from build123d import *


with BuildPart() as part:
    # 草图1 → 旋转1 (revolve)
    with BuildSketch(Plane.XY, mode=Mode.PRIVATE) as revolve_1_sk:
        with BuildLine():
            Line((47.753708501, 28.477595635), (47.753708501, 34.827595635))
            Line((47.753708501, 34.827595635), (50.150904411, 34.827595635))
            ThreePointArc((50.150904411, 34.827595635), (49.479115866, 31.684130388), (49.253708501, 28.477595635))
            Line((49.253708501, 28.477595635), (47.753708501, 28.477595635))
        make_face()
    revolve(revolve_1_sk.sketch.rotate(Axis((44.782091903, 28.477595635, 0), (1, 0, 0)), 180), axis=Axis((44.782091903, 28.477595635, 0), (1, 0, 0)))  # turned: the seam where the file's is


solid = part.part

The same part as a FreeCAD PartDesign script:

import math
import FreeCAD as App
import Part
import Sketcher
from FreeCAD import Vector
Q = App.Units.Quantity

doc = App.newDocument("Part")
body = doc.addObject("PartDesign::Body", "Body")

# Sketch on XY plane
sketch1 = body.newObject("Sketcher::SketchObject", "Sketch")
sketch1.AttachmentSupport = (doc.getObject("XY_Plane"), [""])
sketch1.MapMode = "FlatFace"
sketch1.addGeometry(Part.LineSegment(Vector(47.8, 34.8, 0), Vector(47.8, 28.5, 0)), False)
sketch1.addGeometry(Part.LineSegment(Vector(47.8, 28.5, 0), Vector(49.3, 28.5, 0)), False)
sketch1.addGeometry(Part.ArcOfCircle(Part.Circle(Vector(72.2, 28.5, 0), Vector(0, 0, 1), 22.9), math.radians(163.92), math.radians(180)), False)
sketch1.addGeometry(Part.LineSegment(Vector(50.2, 34.8, 0), Vector(47.8, 34.8, 0)), False)
sketch1.addGeometry(Part.LineSegment(Vector(47.8, 28.5, 0), Vector(72.2, 28.5, 0)), True)  # axis
sketch1.addConstraint(Sketcher.Constraint("Coincident", 0, 2, 1, 1))
sketch1.addConstraint(Sketcher.Constraint("Coincident", 1, 2, 2, 2))
sketch1.addConstraint(Sketcher.Constraint("Coincident", 2, 1, 3, 1))
sketch1.addConstraint(Sketcher.Constraint("Coincident", 3, 2, 0, 1))
sketch1.addConstraint(Sketcher.Constraint("Vertical", 0))
sketch1.addConstraint(Sketcher.Constraint("Horizontal", 1))
sketch1.addConstraint(Sketcher.Constraint("Horizontal", 3))
sketch1.addConstraint(Sketcher.Constraint("Horizontal", 4))
sketch1.addConstraint(Sketcher.Constraint("Coincident", 4, 1, 0, 2))
sketch1.addConstraint(Sketcher.Constraint("Coincident", 4, 2, 2, 3))
sketch1.addConstraint(Sketcher.Constraint("Radius", 2, Q("22.92 mm")))
sketch1.addConstraint(Sketcher.Constraint("DistanceX", 1, 1, 1, 2, Q("1.5 mm")))
sketch1.addConstraint(Sketcher.Constraint("DistanceY", 0, 2, 0, 1, Q("6.35 mm")))
sketch1.addConstraint(Sketcher.Constraint("DistanceX", -1, 1, 2, 3, Q("72.173709 mm")))
sketch1.addConstraint(Sketcher.Constraint("DistanceY", -1, 1, 2, 3, Q("28.477596 mm")))
revolution = body.newObject("PartDesign::Revolution", "Revolution")
revolution.Profile = sketch1
revolution.ReferenceAxis = (sketch1, ["Axis0"])
revolution.Angle = 360

doc.recompute()
